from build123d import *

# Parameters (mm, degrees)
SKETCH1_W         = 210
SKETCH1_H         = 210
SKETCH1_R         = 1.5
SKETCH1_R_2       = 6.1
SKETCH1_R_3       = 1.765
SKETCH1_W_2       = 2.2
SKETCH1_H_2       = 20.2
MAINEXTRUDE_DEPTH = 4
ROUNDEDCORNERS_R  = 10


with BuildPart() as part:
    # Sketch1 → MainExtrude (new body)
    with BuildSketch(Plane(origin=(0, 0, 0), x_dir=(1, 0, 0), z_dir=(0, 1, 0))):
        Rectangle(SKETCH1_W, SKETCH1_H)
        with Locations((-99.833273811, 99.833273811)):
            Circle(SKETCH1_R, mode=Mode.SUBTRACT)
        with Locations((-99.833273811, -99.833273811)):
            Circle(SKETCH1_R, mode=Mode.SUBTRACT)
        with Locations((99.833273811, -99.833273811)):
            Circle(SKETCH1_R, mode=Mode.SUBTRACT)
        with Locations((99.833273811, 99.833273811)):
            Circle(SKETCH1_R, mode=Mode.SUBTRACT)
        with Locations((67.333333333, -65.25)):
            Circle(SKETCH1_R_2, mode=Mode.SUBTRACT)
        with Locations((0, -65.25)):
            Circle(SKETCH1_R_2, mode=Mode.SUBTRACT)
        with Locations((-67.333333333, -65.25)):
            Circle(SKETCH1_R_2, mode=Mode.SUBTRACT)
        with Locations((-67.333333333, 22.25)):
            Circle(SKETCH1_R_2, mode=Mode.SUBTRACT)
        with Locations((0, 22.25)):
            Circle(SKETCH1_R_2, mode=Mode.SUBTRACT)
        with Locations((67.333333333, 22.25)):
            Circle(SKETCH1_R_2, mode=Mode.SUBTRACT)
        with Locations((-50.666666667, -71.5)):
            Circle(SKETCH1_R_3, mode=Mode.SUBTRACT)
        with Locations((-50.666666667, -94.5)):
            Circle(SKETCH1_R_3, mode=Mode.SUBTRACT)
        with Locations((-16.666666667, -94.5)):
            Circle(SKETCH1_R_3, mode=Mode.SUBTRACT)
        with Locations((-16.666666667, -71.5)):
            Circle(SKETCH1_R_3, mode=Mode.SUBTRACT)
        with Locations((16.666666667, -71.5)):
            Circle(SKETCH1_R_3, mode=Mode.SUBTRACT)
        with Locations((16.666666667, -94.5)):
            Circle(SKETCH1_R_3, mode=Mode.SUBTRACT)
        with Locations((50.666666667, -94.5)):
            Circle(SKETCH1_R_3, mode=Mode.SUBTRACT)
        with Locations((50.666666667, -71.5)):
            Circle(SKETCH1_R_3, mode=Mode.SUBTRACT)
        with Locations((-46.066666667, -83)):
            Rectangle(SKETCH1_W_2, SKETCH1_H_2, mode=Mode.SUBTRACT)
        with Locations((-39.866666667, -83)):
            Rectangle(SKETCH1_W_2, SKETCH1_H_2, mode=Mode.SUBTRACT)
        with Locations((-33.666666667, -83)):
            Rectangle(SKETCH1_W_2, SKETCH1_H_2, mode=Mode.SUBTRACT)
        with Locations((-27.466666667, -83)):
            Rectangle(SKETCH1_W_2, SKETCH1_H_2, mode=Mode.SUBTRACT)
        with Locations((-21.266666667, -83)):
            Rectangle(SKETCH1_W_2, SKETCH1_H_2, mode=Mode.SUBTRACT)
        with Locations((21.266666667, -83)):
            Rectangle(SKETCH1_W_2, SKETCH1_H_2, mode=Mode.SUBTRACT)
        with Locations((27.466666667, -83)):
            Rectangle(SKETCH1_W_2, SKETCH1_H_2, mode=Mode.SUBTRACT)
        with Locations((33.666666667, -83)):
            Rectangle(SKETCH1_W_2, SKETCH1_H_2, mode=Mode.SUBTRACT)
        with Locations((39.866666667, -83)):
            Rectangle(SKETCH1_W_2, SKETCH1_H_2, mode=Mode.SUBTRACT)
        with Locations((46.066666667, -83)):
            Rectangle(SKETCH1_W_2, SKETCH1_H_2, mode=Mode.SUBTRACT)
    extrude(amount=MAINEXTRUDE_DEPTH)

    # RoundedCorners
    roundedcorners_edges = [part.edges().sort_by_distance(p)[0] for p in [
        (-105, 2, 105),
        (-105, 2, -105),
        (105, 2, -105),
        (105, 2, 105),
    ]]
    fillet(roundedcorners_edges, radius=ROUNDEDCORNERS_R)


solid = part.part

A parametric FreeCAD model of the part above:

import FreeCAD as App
import Part
import Sketcher
from FreeCAD import Vector


def edges_at(feature, points):
    """Names of the edges that pass closest to the given points."""
    edges = feature.Shape.Edges
    near = lambda p: min(range(len(edges)), key=lambda i: edges[i].distToShape(Part.Vertex(*p))[0])
    return sorted({f"Edge{near(p) + 1}" for p in points})


def add_polygon(sketch, points):
    """Adds a closed chain of lines whose ends are joined by coincident constraints."""
    first, n = sketch.GeometryCount, len(points)
    for a, b in zip(points, points[1:] + points[:1]):
        sketch.addGeometry(Part.LineSegment(App.Vector(*a, 0), App.Vector(*b, 0)), False)
    for i in range(n):
        sketch.addConstraint(Sketcher.Constraint("Coincident", first + i, 2, first + (i + 1) % n, 1))

doc = App.newDocument("Part")
params = doc.addObject("Spreadsheet::Sheet", "Params")
for row, (alias, value) in enumerate([
    ("sketch1_diameter", "3 mm"),
    ("sketch1_diameter2", "12.2 mm"),
    ("sketch1_diameter3", "3.53 mm"),
    ("sketch1_width", "210 mm"),
    ("sketch1_width2", "2.2 mm"),
    ("pad1_length", "4 mm"),
    ("fillet_radius", "10 mm"),
], start=1):
    params.set(f"A{row}", alias)
    params.set(f"B{row}", "=" + value)
    params.setAlias(f"B{row}", alias)

body = doc.addObject("PartDesign::Body", "Body")

# Sketch on XZ plane
sketch1 = body.newObject("Sketcher::SketchObject", "Sketch")
sketch1.AttachmentSupport = (doc.getObject("XZ_Plane"), [""])
sketch1.MapMode = "FlatFace"
add_polygon(sketch1, [(-105, -105), (-105, 105), (105, 105), (105, -105)])  # lines 0-3
sketch1.addGeometry(Part.Circle(Vector(-99.8, 99.8, 0), Vector(0, 0, 1), 1.5), False)  # 4
sketch1.addGeometry(Part.Circle(Vector(-50.7, 94.5, 0), Vector(0, 0, 1), 1.8), False)  # 5
sketch1.addGeometry(Part.Circle(Vector(-67.3, 65.2, 0), Vector(0, 0, 1), 6.1), False)  # 6
sketch1.addGeometry(Part.Circle(Vector(-50.7, 71.5, 0), Vector(0, 0, 1), 1.8), False)  # 7
add_polygon(sketch1, [(-45, 93.1), (-47.2, 93.1), (-47.2, 72.9), (-45, 72.9)])  # lines 8-11
add_polygon(sketch1, [(-38.8, 93.1), (-41, 93.1), (-41, 72.9), (-38.8, 72.9)])  # lines 12-15
add_polygon(sketch1, [(-32.6, 93.1), (-34.8, 93.1), (-34.8, 72.9), (-32.6, 72.9)])  # lines 16-19
add_polygon(sketch1, [(-26.4, 93.1), (-28.6, 93.1), (-28.6, 72.9), (-26.4, 72.9)])  # lines 20-23
sketch1.addGeometry(Part.Circle(Vector(-16.7, 94.5, 0), Vector(0, 0, 1), 1.8), False)  # 24
add_polygon(sketch1, [(-20.2, 93.1), (-22.4, 93.1), (-22.4, 72.9), (-20.2, 72.9)])  # lines 25-28
sketch1.addGeometry(Part.Circle(Vector(-16.7, 71.5, 0), Vector(0, 0, 1), 1.8), False)  # 29
sketch1.addGeometry(Part.Circle(Vector(16.7, 94.5, 0), Vector(0, 0, 1), 1.8), False)  # 30
add_polygon(sketch1, [(22.4, 93.1), (20.2, 93.1), (20.2, 72.9), (22.4, 72.9)])  # lines 31-34
add_polygon(sketch1, [(28.6, 93.1), (26.4, 93.1), (26.4, 72.9), (28.6, 72.9)])  # lines 35-38
add_polygon(sketch1, [(34.8, 93.1), (32.6, 93.1), (32.6, 72.9), (34.8, 72.9)])  # lines 39-42
add_polygon(sketch1, [(41, 93.1), (38.8, 93.1), (38.8, 72.9), (41, 72.9)])  # lines 43-46
add_polygon(sketch1, [(47.2, 93.1), (45, 93.1), (45, 72.9), (47.2, 72.9)])  # lines 47-50
sketch1.addGeometry(Part.Circle(Vector(0, 65.2, 0), Vector(0, 0, 1), 6.1), False)  # 51
sketch1.addGeometry(Part.Circle(Vector(16.7, 71.5, 0), Vector(0, 0, 1), 1.8), False)  # 52
sketch1.addGeometry(Part.Circle(Vector(50.7, 94.5, 0), Vector(0, 0, 1), 1.8), False)  # 53
sketch1.addGeometry(Part.Circle(Vector(99.8, 99.8, 0), Vector(0, 0, 1), 1.5), False)  # 54
sketch1.addGeometry(Part.Circle(Vector(50.7, 71.5, 0), Vector(0, 0, 1), 1.8), False)  # 55
sketch1.addGeometry(Part.Circle(Vector(67.3, 65.2, 0), Vector(0, 0, 1), 6.1), False)  # 56
sketch1.addGeometry(Part.Circle(Vector(-67.3, -22.2, 0), Vector(0, 0, 1), 6.1), False)  # 57
sketch1.addGeometry(Part.Circle(Vector(-99.8, -99.8, 0), Vector(0, 0, 1), 1.5), False)  # 58
sketch1.addGeometry(Part.Circle(Vector(0, -22.2, 0), Vector(0, 0, 1), 6.1), False)  # 59
sketch1.addGeometry(Part.Circle(Vector(67.3, -22.2, 0), Vector(0, 0, 1), 6.1), False)  # 60
sketch1.addGeometry(Part.Circle(Vector(99.8, -99.8, 0), Vector(0, 0, 1), 1.5), False)  # 61
sketch1.addConstraint(Sketcher.Constraint("Vertical", 0))
sketch1.addConstraint(Sketcher.Constraint("Horizontal", 1))
sketch1.addConstraint(Sketcher.Constraint("Vertical", 2))
sketch1.addConstraint(Sketcher.Constraint("Horizontal", 3))
sketch1.addConstraint(Sketcher.Constraint("Horizontal", 8))
sketch1.addConstraint(Sketcher.Constraint("Vertical", 9))
sketch1.addConstraint(Sketcher.Constraint("Horizontal", 10))
sketch1.addConstraint(Sketcher.Constraint("Vertical", 11))
sketch1.addConstraint(Sketcher.Constraint("Horizontal", 12))
sketch1.addConstraint(Sketcher.Constraint("Vertical", 13))
sketch1.addConstraint(Sketcher.Constraint("Horizontal", 14))
sketch1.addConstraint(Sketcher.Constraint("Vertical", 15))
sketch1.addConstraint(Sketcher.Constraint("Horizontal", 16))
sketch1.addConstraint(Sketcher.Constraint("Vertical", 17))
sketch1.addConstraint(Sketcher.Constraint("Horizontal", 18))
sketch1.addConstraint(Sketcher.Constraint("Vertical", 19))
sketch1.addConstraint(Sketcher.Constraint("Horizontal", 20))
sketch1.addConstraint(Sketcher.Constraint("Vertical", 21))
sketch1.addConstraint(Sketcher.Constraint("Horizontal", 22))
sketch1.addConstraint(Sketcher.Constraint("Vertical", 23))
sketch1.addConstraint(Sketcher.Constraint("Horizontal", 25))
sketch1.addConstraint(Sketcher.Constraint("Vertical", 26))
sketch1.addConstraint(Sketcher.Constraint("Horizontal", 27))
sketch1.addConstraint(Sketcher.Constraint("Vertical", 28))
sketch1.addConstraint(Sketcher.Constraint("Horizontal", 31))
sketch1.addConstraint(Sketcher.Constraint("Vertical", 32))
sketch1.addConstraint(Sketcher.Constraint("Horizontal", 33))
sketch1.addConstraint(Sketcher.Constraint("Vertical", 34))
sketch1.addConstraint(Sketcher.Constraint("Horizontal", 35))
sketch1.addConstraint(Sketcher.Constraint("Vertical", 36))
sketch1.addConstraint(Sketcher.Constraint("Horizontal", 37))
sketch1.addConstraint(Sketcher.Constraint("Vertical", 38))
sketch1.addConstraint(Sketcher.Constraint("Horizontal", 39))
sketch1.addConstraint(Sketcher.Constraint("Vertical", 40))
sketch1.addConstraint(Sketcher.Constraint("Horizontal", 41))
sketch1.addConstraint(Sketcher.Constraint("Vertical", 42))
sketch1.addConstraint(Sketcher.Constraint("Horizontal", 43))
sketch1.addConstraint(Sketcher.Constraint("Vertical", 44))
sketch1.addConstraint(Sketcher.Constraint("Horizontal", 45))
sketch1.addConstraint(Sketcher.Constraint("Vertical", 46))
sketch1.addConstraint(Sketcher.Constraint("Horizontal", 47))
sketch1.addConstraint(Sketcher.Constraint("Vertical", 48))
sketch1.addConstraint(Sketcher.Constraint("Horizontal", 49))
sketch1.addConstraint(Sketcher.Constraint("Vertical", 50))
sketch1.addConstraint(Sketcher.Constraint("Equal", 5, 7))
sketch1.addConstraint(Sketcher.Constraint("Equal", 7, 24))
sketch1.addConstraint(Sketcher.Constraint("Equal", 24, 29))
sketch1.addConstraint(Sketcher.Constraint("Equal", 29, 30))
sketch1.addConstraint(Sketcher.Constraint("Equal", 6, 51))
sketch1.addConstraint(Sketcher.Constraint("Equal", 30, 52))
sketch1.addConstraint(Sketcher.Constraint("Equal", 52, 53))
sketch1.addConstraint(Sketcher.Constraint("Equal", 4, 54))
sketch1.addConstraint(Sketcher.Constraint("Equal", 53, 55))
sketch1.addConstraint(Sketcher.Constraint("Equal", 51, 56))
sketch1.addConstraint(Sketcher.Constraint("Equal", 56, 57))
sketch1.addConstraint(Sketcher.Constraint("Equal", 54, 58))
sketch1.addConstraint(Sketcher.Constraint("Equal", 57, 59))
sketch1.addConstraint(Sketcher.Constraint("Equal", 59, 60))
sketch1.addConstraint(Sketcher.Constraint("Equal", 58, 61))
sketch1.addConstraint(Sketcher.Constraint("Symmetric", 54, 3, 58, 3, -1, 1))
sketch1.addConstraint(Sketcher.Constraint("Symmetric", 4, 3, 61, 3, -1, 1))
sketch1.addConstraint(Sketcher.Constraint("Symmetric", 0, 2, 2, 2, -1, 1))
sketch1.addConstraint(Sketcher.Constraint("Symmetric", 24, 3, 30, 3, -2))
sketch1.addConstraint(Sketcher.Constraint("Symmetric", 29, 3, 52, 3, -2))
sketch1.addConstraint(Sketcher.Constraint("Symmetric", 5, 3, 53, 3, -2))
sketch1.addConstraint(Sketcher.Constraint("Symmetric", 4, 3, 54, 3, -2))
sketch1.addConstraint(Sketcher.Constraint("Symmetric", 7, 3, 55, 3, -2))
sketch1.addConstraint(Sketcher.Constraint("Symmetric", 6, 3, 56, 3, -2))
sketch1.addConstraint(Sketcher.Constraint("Symmetric", 57, 3, 60, 3, -2))
sketch1.addConstraint(Sketcher.Constraint("Symmetric", 28, 2, 31, 2, -2))
sketch1.addConstraint(Sketcher.Constraint("Symmetric", 26, 2, 33, 2, -2))
sketch1.addConstraint(Sketcher.Constraint("Symmetric", 23, 2, 35, 2, -2))
sketch1.addConstraint(Sketcher.Constraint("Symmetric", 21, 2, 37, 2, -2))
sketch1.addConstraint(Sketcher.Constraint("Symmetric", 19, 2, 39, 2, -2))
sketch1.addConstraint(Sketcher.Constraint("Symmetric", 17, 2, 41, 2, -2))
sketch1.addConstraint(Sketcher.Constraint("Symmetric", 15, 2, 43, 2, -2))
sketch1.addConstraint(Sketcher.Constraint("Symmetric", 13, 2, 45, 2, -2))
sketch1.addConstraint(Sketcher.Constraint("Symmetric", 11, 2, 47, 2, -2))
sketch1.addConstraint(Sketcher.Constraint("Symmetric", 9, 2, 49, 2, -2))
sketch1.addConstraint(Sketcher.Constraint("PointOnObject", 51, 3, -2))
sketch1.addConstraint(Sketcher.Constraint("PointOnObject", 59, 3, -2))
sketch1.addConstraint(Sketcher.Constraint("Horizontal", 5, 3, 24, 3))
sketch1.addConstraint(Sketcher.Constraint("Horizontal", 7, 3, 29, 3))
sketch1.addConstraint(Sketcher.Constraint("Horizontal", 6, 3, 51, 3))
sketch1.addConstraint(Sketcher.Constraint("Horizontal", 57, 3, 59, 3))
sketch1.addConstraint(Sketcher.Constraint("Horizontal", 11, 2, 12, 2))
sketch1.addConstraint(Sketcher.Constraint("Horizontal", 10, 2, 13, 2))
sketch1.addConstraint(Sketcher.Constraint("Horizontal", 15, 2, 16, 2))
sketch1.addConstraint(Sketcher.Constraint("Horizontal", 14, 2, 17, 2))
sketch1.addConstraint(Sketcher.Constraint("Horizontal", 19, 2, 20, 2))
sketch1.addConstraint(Sketcher.Constraint("Horizontal", 18, 2, 21, 2))
sketch1.addConstraint(Sketcher.Constraint("Horizontal", 23, 2, 25, 2))
sketch1.addConstraint(Sketcher.Constraint("Horizontal", 22, 2, 26, 2))
sketch1.addConstraint(Sketcher.Constraint("Vertical", 5, 3, 7, 3))
sketch1.addConstraint(Sketcher.Constraint("Vertical", 24, 3, 29, 3))
sketch1.addConstraint(Sketcher.Constraint("Vertical", 6, 3, 57, 3))
sketch1.addConstraint(Sketcher.Constraint("Equal", 10, 12))
sketch1.addConstraint(Sketcher.Constraint("Equal", 14, 16))
sketch1.addConstraint(Sketcher.Constraint("Equal", 18, 20))
sketch1.addConstraint(Sketcher.Constraint("Equal", 22, 25))
sketch1.addConstraint(Sketcher.Constraint("Equal", 3, 0))
sketch1.addConstraint(Sketcher.Constraint("Diameter", 4, 3.0))
sketch1.addConstraint(Sketcher.Constraint("Diameter", 6, 12.2))
sketch1.addConstraint(Sketcher.Constraint("Diameter", 5, 3.53))
sketch1.addConstraint(Sketcher.Constraint("DistanceX", 1, 1, 1, 2, 210.0))
sketch1.addConstraint(Sketcher.Constraint("DistanceX", 8, 2, 8, 1, 2.2))
sketch1.addConstraint(Sketcher.Constraint("DistanceY", 9, 2, 9, 1, 20.2))
sketch1.addConstraint(Sketcher.Constraint("DistanceY", -1, 1, 5, 3, 94.5))
sketch1.addConstraint(Sketcher.Constraint("DistanceY", -1, 1, 7, 3, 71.5))
sketch1.addConstraint(Sketcher.Constraint("DistanceY", -1, 1, 8, 2, 93.1))
sketch1.addConstraint(Sketcher.Constraint("DistanceY", -1, 1, 6, 3, 65.25))
sketch1.addConstraint(Sketcher.Constraint("DistanceY", 57, 3, -1, 1, 22.25))
sketch1.addConstraint(Sketcher.Constraint("DistanceX", 4, 3, -1, 1, 99.833274))
sketch1.addConstraint(Sketcher.Constraint("DistanceY", -1, 1, 4, 3, 99.833274))
sketch1.addConstraint(Sketcher.Constraint("DistanceX", 5, 3, -1, 1, 50.666667))
sketch1.addConstraint(Sketcher.Constraint("DistanceX", 6, 3, -1, 1, 67.333333))
sketch1.addConstraint(Sketcher.Constraint("DistanceX", 24, 3, -1, 1, 16.666667))
sketch1.addConstraint(Sketcher.Constraint("DistanceX", 8, 2, -1, 1, 47.166667))
sketch1.addConstraint(Sketcher.Constraint("DistanceX", 12, 2, -1, 1, 40.966667))
sketch1.addConstraint(Sketcher.Constraint("DistanceX", 16, 2, -1, 1, 34.766667))
sketch1.addConstraint(Sketcher.Constraint("DistanceX", 20, 2, -1, 1, 28.566667))
sketch1.addConstraint(Sketcher.Constraint("DistanceX", 25, 2, -1, 1, 22.366667))
sketch1.setExpression("Constraints[145]", "Params.sketch1_diameter")
sketch1.setExpression("Constraints[146]", "Params.sketch1_diameter2")
sketch1.setExpression("Constraints[147]", "Params.sketch1_diameter3")
sketch1.setExpression("Constraints[148]", "Params.sketch1_width")
sketch1.setExpression("Constraints[149]", "Params.sketch1_width2")
pad1 = body.newObject("PartDesign::Pad", "Pad")
pad1.Profile = sketch1
pad1.setExpression("Length", "Params.pad1_length")
pad1.Reversed = True
doc.recompute()

fillet = body.newObject("PartDesign::Fillet", "Fillet")
fillet.Base = (pad1, edges_at(pad1, [
    (-105, 2, 105),
    (-105, 2, -105),
    (105, 2, -105),
    (105, 2, 105),
]))
fillet.setExpression("Radius", "Params.fillet_radius")

doc.recompute()
